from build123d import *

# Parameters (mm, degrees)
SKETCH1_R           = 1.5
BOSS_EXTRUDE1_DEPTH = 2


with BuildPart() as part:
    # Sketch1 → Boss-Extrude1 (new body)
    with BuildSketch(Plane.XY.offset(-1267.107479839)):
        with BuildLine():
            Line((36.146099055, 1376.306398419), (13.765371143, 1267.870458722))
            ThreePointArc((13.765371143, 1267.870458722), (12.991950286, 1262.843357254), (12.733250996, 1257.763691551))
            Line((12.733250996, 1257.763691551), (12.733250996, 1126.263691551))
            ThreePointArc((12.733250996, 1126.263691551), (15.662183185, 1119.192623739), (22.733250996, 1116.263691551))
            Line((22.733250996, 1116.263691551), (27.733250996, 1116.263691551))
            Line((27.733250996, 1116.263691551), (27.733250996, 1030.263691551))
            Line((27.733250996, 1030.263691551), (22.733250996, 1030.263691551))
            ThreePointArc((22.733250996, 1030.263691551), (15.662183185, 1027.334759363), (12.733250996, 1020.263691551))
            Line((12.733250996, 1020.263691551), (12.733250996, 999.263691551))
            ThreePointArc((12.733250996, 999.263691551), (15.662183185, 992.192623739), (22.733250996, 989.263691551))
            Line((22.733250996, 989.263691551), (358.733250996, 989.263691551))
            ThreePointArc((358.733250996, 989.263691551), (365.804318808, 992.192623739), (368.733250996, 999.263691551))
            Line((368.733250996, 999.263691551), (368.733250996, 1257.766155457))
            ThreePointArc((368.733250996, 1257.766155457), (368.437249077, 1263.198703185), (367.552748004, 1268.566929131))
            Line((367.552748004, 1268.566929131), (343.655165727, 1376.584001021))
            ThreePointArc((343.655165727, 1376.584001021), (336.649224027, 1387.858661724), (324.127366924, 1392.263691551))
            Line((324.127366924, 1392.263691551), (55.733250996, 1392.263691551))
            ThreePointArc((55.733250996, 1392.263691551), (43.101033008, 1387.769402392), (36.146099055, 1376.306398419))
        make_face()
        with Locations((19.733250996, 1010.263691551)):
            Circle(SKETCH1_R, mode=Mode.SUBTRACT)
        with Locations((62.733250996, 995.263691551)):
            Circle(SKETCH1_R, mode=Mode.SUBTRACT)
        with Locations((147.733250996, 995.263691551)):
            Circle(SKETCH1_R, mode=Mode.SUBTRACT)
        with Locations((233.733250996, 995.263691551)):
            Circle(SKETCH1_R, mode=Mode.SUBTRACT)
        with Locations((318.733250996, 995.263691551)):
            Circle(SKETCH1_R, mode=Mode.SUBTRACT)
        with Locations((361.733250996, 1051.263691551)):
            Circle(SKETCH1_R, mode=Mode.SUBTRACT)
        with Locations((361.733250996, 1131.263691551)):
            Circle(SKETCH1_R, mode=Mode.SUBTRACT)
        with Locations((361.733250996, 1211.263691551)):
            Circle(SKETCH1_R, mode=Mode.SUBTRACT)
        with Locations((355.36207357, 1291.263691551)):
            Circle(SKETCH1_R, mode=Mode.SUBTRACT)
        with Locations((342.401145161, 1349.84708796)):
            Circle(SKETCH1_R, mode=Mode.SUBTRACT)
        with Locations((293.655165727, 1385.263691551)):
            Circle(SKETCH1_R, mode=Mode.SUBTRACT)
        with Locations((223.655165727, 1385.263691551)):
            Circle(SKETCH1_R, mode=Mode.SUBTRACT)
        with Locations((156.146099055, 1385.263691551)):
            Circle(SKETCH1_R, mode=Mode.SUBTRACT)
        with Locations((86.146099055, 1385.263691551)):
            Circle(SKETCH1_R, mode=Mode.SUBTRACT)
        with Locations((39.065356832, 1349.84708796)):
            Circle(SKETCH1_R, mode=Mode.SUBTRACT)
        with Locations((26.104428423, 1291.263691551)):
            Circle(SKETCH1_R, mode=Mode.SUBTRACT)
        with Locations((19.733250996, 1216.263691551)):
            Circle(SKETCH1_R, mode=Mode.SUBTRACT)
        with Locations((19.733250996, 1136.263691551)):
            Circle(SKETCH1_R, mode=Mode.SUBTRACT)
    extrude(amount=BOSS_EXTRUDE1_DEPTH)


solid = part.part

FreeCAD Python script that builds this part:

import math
import FreeCAD as App
import Part
import Sketcher
from FreeCAD import Vector

doc = App.newDocument("Part")
params = doc.addObject("Spreadsheet::Sheet", "Params")
for row, (alias, value) in enumerate([
    ("sketch1_diameter", "3 mm"),
    ("sketch1_radius", "50 mm"),
    ("sketch1_radius2", "10 mm"),
    ("sketch1_radius3", "20 mm"),
    ("sketch1_width", "5 mm"),
    ("pad1_length", "2 mm"),
], start=1):
    params.set(f"A{row}", alias)
    params.set(f"B{row}", "=" + value)
    params.setAlias(f"B{row}", alias)

body = doc.addObject("PartDesign::Body", "Body")

# Sketch on XY plane
sketch1 = body.newObject("Sketcher::SketchObject", "Sketch")
sketch1.AttachmentSupport = (doc.getObject("XY_Plane"), [""])
sketch1.MapMode = "FlatFace"
sketch1.AttachmentOffset = App.Placement(Vector(0, 0, -1267.10748), App.Rotation())
sketch1.addGeometry(Part.LineSegment(Vector(36.1, 1376.3, 0), Vector(13.8, 1267.9, 0)), False)
sketch1.addGeometry(Part.ArcOfCircle(Part.Circle(Vector(62.7, 1257.8, 0), Vector(0, 0, 1), 50), math.radians(168.34), math.radians(180)), False)
sketch1.addGeometry(Part.LineSegment(Vector(12.7, 1257.8, 0), Vector(12.7, 1126.3, 0)), False)
sketch1.addGeometry(Part.ArcOfCircle(Part.Circle(Vector(22.7, 1126.3, 0), Vector(0, 0, 1), 10), math.radians(-180), math.radians(-90)), False)
sketch1.addGeometry(Part.LineSegment(Vector(22.7, 1116.3, 0), Vector(27.7, 1116.3, 0)), False)
sketch1.addGeometry(Part.LineSegment(Vector(27.7, 1116.3, 0), Vector(27.7, 1030.3, 0)), False)
sketch1.addGeometry(Part.LineSegment(Vector(27.7, 1030.3, 0), Vector(22.7, 1030.3, 0)), False)
sketch1.addGeometry(Part.ArcOfCircle(Part.Circle(Vector(22.7, 1020.3, 0), Vector(0, 0, 1), 10), math.radians(90), math.radians(180)), False)
sketch1.addGeometry(Part.LineSegment(Vector(12.7, 1020.3, 0), Vector(12.7, 999.3, 0)), False)
sketch1.addGeometry(Part.ArcOfCircle(Part.Circle(Vector(22.7, 999.3, 0), Vector(0, 0, 1), 10), math.radians(-180), math.radians(-90)), False)
sketch1.addGeometry(Part.LineSegment(Vector(22.7, 989.3, 0), Vector(358.7, 989.3, 0)), False)
sketch1.addGeometry(Part.ArcOfCircle(Part.Circle(Vector(358.7, 999.3, 0), Vector(0, 0, 1), 10), math.radians(-90), math.radians(0)), False)
sketch1.addGeometry(Part.LineSegment(Vector(368.7, 999.3, 0), Vector(368.7, 1257.8, 0)), False)
sketch1.addGeometry(Part.ArcOfCircle(Part.Circle(Vector(318.7, 1257.8, 0), Vector(0, 0, 1), 50), math.radians(0), math.radians(12.48)), False)
sketch1.addGeometry(Part.LineSegment(Vector(367.6, 1268.6, 0), Vector(343.7, 1376.6, 0)), False)
sketch1.addGeometry(Part.ArcOfCircle(Part.Circle(Vector(324.1, 1372.3, 0), Vector(0, 0, 1), 20), math.radians(12), math.radians(90)), False)
sketch1.addGeometry(Part.LineSegment(Vector(324.1, 1392.3, 0), Vector(55.7, 1392.3, 0)), False)
sketch1.addGeometry(Part.ArcOfCircle(Part.Circle(Vector(55.7, 1372.3, 0), Vector(0, 0, 1), 20), math.radians(90), math.radians(168)), False)
sketch1.addGeometry(Part.Circle(Vector(19.7, 1010.3, 0), Vector(0, 0, 1), 1.5), False)
sketch1.addGeometry(Part.Circle(Vector(62.7, 995.3, 0), Vector(0, 0, 1), 1.5), False)
sketch1.addGeometry(Part.Circle(Vector(147.7, 995.3, 0), Vector(0, 0, 1), 1.5), False)
sketch1.addGeometry(Part.Circle(Vector(19.7, 1136.3, 0), Vector(0, 0, 1), 1.5), False)
sketch1.addGeometry(Part.Circle(Vector(233.7, 995.3, 0), Vector(0, 0, 1), 1.5), False)
sketch1.addGeometry(Part.Circle(Vector(318.7, 995.3, 0), Vector(0, 0, 1), 1.5), False)
sketch1.addGeometry(Part.Circle(Vector(361.7, 1051.3, 0), Vector(0, 0, 1), 1.5), False)
sketch1.addGeometry(Part.Circle(Vector(361.7, 1131.3, 0), Vector(0, 0, 1), 1.5), False)
sketch1.addGeometry(Part.Circle(Vector(19.7, 1216.3, 0), Vector(0, 0, 1), 1.5), False)
sketch1.addGeometry(Part.Circle(Vector(26.1, 1291.3, 0), Vector(0, 0, 1), 1.5), False)
sketch1.addGeometry(Part.Circle(Vector(39.1, 1349.8, 0), Vector(0, 0, 1), 1.5), False)
sketch1.addGeometry(Part.Circle(Vector(86.1, 1385.3, 0), Vector(0, 0, 1), 1.5), False)
sketch1.addGeometry(Part.Circle(Vector(156.1, 1385.3, 0), Vector(0, 0, 1), 1.5), False)
sketch1.addGeometry(Part.Circle(Vector(361.7, 1211.3, 0), Vector(0, 0, 1), 1.5), False)
sketch1.addGeometry(Part.Circle(Vector(223.7, 1385.3, 0), Vector(0, 0, 1), 1.5), False)
sketch1.addGeometry(Part.Circle(Vector(355.4, 1291.3, 0), Vector(0, 0, 1), 1.5), False)
sketch1.addGeometry(Part.Circle(Vector(293.7, 1385.3, 0), Vector(0, 0, 1), 1.5), False)
sketch1.addGeometry(Part.Circle(Vector(342.4, 1349.8, 0), Vector(0, 0, 1), 1.5), False)
sketch1.addConstraint(Sketcher.Constraint("Tangent", 0, 2, 1, 1))
sketch1.addConstraint(Sketcher.Constraint("Tangent", 1, 2, 2, 1))
sketch1.addConstraint(Sketcher.Constraint("Tangent", 2, 2, 3, 1))
sketch1.addConstraint(Sketcher.Constraint("Tangent", 3, 2, 4, 1))
sketch1.addConstraint(Sketcher.Constraint("Coincident", 4, 2, 5, 1))
sketch1.addConstraint(Sketcher.Constraint("Coincident", 5, 2, 6, 1))
sketch1.addConstraint(Sketcher.Constraint("Tangent", 6, 2, 7, 1))
sketch1.addConstraint(Sketcher.Constraint("Tangent", 7, 2, 8, 1))
sketch1.addConstraint(Sketcher.Constraint("Tangent", 8, 2, 9, 1))
sketch1.addConstraint(Sketcher.Constraint("Tangent", 9, 2, 10, 1))
sketch1.addConstraint(Sketcher.Constraint("Tangent", 10, 2, 11, 1))
sketch1.addConstraint(Sketcher.Constraint("Tangent", 11, 2, 12, 1))
sketch1.addConstraint(Sketcher.Constraint("Tangent", 12, 2, 13, 1))
sketch1.addConstraint(Sketcher.Constraint("Tangent", 13, 2, 14, 1))
sketch1.addConstraint(Sketcher.Constraint("Tangent", 14, 2, 15, 1))
sketch1.addConstraint(Sketcher.Constraint("Tangent", 15, 2, 16, 1))
sketch1.addConstraint(Sketcher.Constraint("Tangent", 16, 2, 17, 1))
sketch1.addConstraint(Sketcher.Constraint("Tangent", 17, 2, 0, 1))
sketch1.addConstraint(Sketcher.Constraint("Vertical", 2))
sketch1.addConstraint(Sketcher.Constraint("Horizontal", 4))
sketch1.addConstraint(Sketcher.Constraint("Vertical", 5))
sketch1.addConstraint(Sketcher.Constraint("Horizontal", 6))
sketch1.addConstraint(Sketcher.Constraint("Vertical", 8))
sketch1.addConstraint(Sketcher.Constraint("Horizontal", 10))
sketch1.addConstraint(Sketcher.Constraint("Vertical", 12))
sketch1.addConstraint(Sketcher.Constraint("Horizontal", 16))
sketch1.addConstraint(Sketcher.Constraint("Equal", 3, 7))
sketch1.addConstraint(Sketcher.Constraint("Equal", 7, 9))
sketch1.addConstraint(Sketcher.Constraint("Equal", 9, 11))
sketch1.addConstraint(Sketcher.Constraint("Equal", 1, 13))
sketch1.addConstraint(Sketcher.Constraint("Equal", 15, 17))
sketch1.addConstraint(Sketcher.Constraint("Equal", 18, 19))
sketch1.addConstraint(Sketcher.Constraint("Equal", 19, 20))
sketch1.addConstraint(Sketcher.Constraint("Equal", 20, 21))
sketch1.addConstraint(Sketcher.Constraint("Equal", 21, 22))
sketch1.addConstraint(Sketcher.Constraint("Equal", 22, 23))
sketch1.addConstraint(Sketcher.Constraint("Equal", 23, 24))
sketch1.addConstraint(Sketcher.Constraint("Equal", 24, 25))
sketch1.addConstraint(Sketcher.Constraint("Equal", 25, 26))
sketch1.addConstraint(Sketcher.Constraint("Equal", 26, 27))
sketch1.addConstraint(Sketcher.Constraint("Equal", 27, 28))
sketch1.addConstraint(Sketcher.Constraint("Equal", 28, 29))
sketch1.addConstraint(Sketcher.Constraint("Equal", 29, 30))
sketch1.addConstraint(Sketcher.Constraint("Equal", 30, 31))
sketch1.addConstraint(Sketcher.Constraint("Equal", 31, 32))
sketch1.addConstraint(Sketcher.Constraint("Equal", 32, 33))
sketch1.addConstraint(Sketcher.Constraint("Equal", 33, 34))
sketch1.addConstraint(Sketcher.Constraint("Equal", 34, 35))
sketch1.addConstraint(Sketcher.Constraint("Horizontal", 19, 3, 20, 3))
sketch1.addConstraint(Sketcher.Constraint("Horizontal", 20, 3, 22, 3))
sketch1.addConstraint(Sketcher.Constraint("Horizontal", 22, 3, 23, 3))
sketch1.addConstraint(Sketcher.Constraint("Horizontal", 29, 3, 30, 3))
sketch1.addConstraint(Sketcher.Constraint("Horizontal", 30, 3, 32, 3))
sketch1.addConstraint(Sketcher.Constraint("Horizontal", 27, 3, 33, 3))
sketch1.addConstraint(Sketcher.Constraint("Horizontal", 32, 3, 34, 3))
sketch1.addConstraint(Sketcher.Constraint("Horizontal", 28, 3, 35, 3))
sketch1.addConstraint(Sketcher.Constraint("Vertical", 3, 3, 7, 3))
sketch1.addConstraint(Sketcher.Constraint("Vertical", 1, 3, 19, 3))
sketch1.addConstraint(Sketcher.Constraint("Vertical", 18, 3, 21, 3))
sketch1.addConstraint(Sketcher.Constraint("Vertical", 13, 3, 23, 3))
sketch1.addConstraint(Sketcher.Constraint("Vertical", 24, 3, 25, 3))
sketch1.addConstraint(Sketcher.Constraint("Vertical", 21, 3, 26, 3))
sketch1.addConstraint(Sketcher.Constraint("Vertical", 25, 3, 31, 3))
sketch1.addConstraint(Sketcher.Constraint("Diameter", 18, 3.0))
sketch1.addConstraint(Sketcher.Constraint("Radius", 1, 50.0))
sketch1.addConstraint(Sketcher.Constraint("Radius", 3, 10.0))
sketch1.addConstraint(Sketcher.Constraint("Radius", 15, 20.0))
sketch1.addConstraint(Sketcher.Constraint("DistanceX", 4, 1, 4, 2, 5.0))
sketch1.addConstraint(Sketcher.Constraint("DistanceX", 10, 1, 10, 2, 336.0))
sketch1.addConstraint(Sketcher.Constraint("DistanceY", 5, 2, 5, 1, 86.0))
sketch1.addConstraint(Sketcher.Constraint("DistanceY", 8, 2, 8, 1, 21.0))
sketch1.addConstraint(Sketcher.Constraint("DistanceY", 2, 2, 2, 1, 131.5))
sketch1.addConstraint(Sketcher.Constraint("DistanceY", 11, 3, 15, 3, 373.0))
sketch1.addConstraint(Sketcher.Constraint("DistanceX", 17, 3, 1, 3, 7.0))
sketch1.addConstraint(Sketcher.Constraint("DistanceX", 18, 3, 7, 3, 3.0))
sketch1.addConstraint(Sketcher.Constraint("DistanceY", 18, 3, 7, 3, 10.0))
sketch1.addConstraint(Sketcher.Constraint("DistanceY", 19, 3, 9, 3, 4.0))
sketch1.addConstraint(Sketcher.Constraint("DistanceX", 19, 3, 20, 3, 85.0))
sketch1.addConstraint(Sketcher.Constraint("DistanceY", 3, 3, 21, 3, 10.0))
sketch1.addConstraint(Sketcher.Constraint("DistanceX", 20, 3, 22, 3, 86.0))
sketch1.addConstraint(Sketcher.Constraint("DistanceX", 11, 3, 24, 3, 3.0))
sketch1.addConstraint(Sketcher.Constraint("DistanceY", 11, 3, 24, 3, 52.0))
sketch1.addConstraint(Sketcher.Constraint("DistanceY", 24, 3, 25, 3, 80.0))
sketch1.addConstraint(Sketcher.Constraint("DistanceY", 21, 3, 26, 3, 80.0))
sketch1.addConstraint(Sketcher.Constraint("DistanceY", 26, 3, 27, 3, 75.0))
sketch1.addConstraint(Sketcher.Constraint("DistanceY", 17, 3, 29, 3, 13.0))
sketch1.addConstraint(Sketcher.Constraint("DistanceX", 29, 3, 30, 3, 70.0))
sketch1.addConstraint(Sketcher.Constraint("DistanceY", 25, 3, 31, 3, 80.0))
sketch1.addConstraint(Sketcher.Constraint("DistanceX", 32, 3, 34, 3, 70.0))
sketch1.addConstraint(Sketcher.Constraint("DistanceX", 34, 3, 14, 2, 50.0))
sketch1.addConstraint(Sketcher.Constraint("DistanceX", 17, 2, 29, 3, 50.0))
sketch1.addConstraint(Sketcher.Constraint("DistanceY", -1, 1, 14, 2, 1376.584001))
sketch1.addConstraint(Sketcher.Constraint("DistanceX", -1, 1, 29, 3, 86.146099))
sketch1.addConstraint(Sketcher.Constraint("DistanceY", -1, 1, 17, 2, 1376.306398))
sketch1.addConstraint(Sketcher.Constraint("Distance", 14, 110.62903))
sketch1.addConstraint(Sketcher.Constraint("DistanceX", -1, 1, 27, 3, 26.104428))
sketch1.addConstraint(Sketcher.Constraint("DistanceX", 27, 3, 28, 3, 12.960928))
sketch1.addConstraint(Sketcher.Constraint("DistanceX", 15, 3, 35, 3, 18.273778))
sketch1.addConstraint(Sketcher.Constraint("DistanceX", 35, 3, 33, 3, 12.960928))
sketch1.addConstraint(Sketcher.Constraint("DistanceY", 0, 2, 28, 3, 81.976629))
sketch1.setExpression("Constraints[63]", "Params.sketch1_diameter")
sketch1.setExpression("Constraints[64]", "Params.sketch1_radius")
sketch1.setExpression("Constraints[65]", "Params.sketch1_radius2")
sketch1.setExpression("Constraints[66]", "Params.sketch1_radius3")
sketch1.setExpression("Constraints[67]", "Params.sketch1_width")
pad1 = body.newObject("PartDesign::Pad", "Pad")
pad1.Profile = sketch1
pad1.setExpression("Length", "Params.pad1_length")

doc.recompute()
